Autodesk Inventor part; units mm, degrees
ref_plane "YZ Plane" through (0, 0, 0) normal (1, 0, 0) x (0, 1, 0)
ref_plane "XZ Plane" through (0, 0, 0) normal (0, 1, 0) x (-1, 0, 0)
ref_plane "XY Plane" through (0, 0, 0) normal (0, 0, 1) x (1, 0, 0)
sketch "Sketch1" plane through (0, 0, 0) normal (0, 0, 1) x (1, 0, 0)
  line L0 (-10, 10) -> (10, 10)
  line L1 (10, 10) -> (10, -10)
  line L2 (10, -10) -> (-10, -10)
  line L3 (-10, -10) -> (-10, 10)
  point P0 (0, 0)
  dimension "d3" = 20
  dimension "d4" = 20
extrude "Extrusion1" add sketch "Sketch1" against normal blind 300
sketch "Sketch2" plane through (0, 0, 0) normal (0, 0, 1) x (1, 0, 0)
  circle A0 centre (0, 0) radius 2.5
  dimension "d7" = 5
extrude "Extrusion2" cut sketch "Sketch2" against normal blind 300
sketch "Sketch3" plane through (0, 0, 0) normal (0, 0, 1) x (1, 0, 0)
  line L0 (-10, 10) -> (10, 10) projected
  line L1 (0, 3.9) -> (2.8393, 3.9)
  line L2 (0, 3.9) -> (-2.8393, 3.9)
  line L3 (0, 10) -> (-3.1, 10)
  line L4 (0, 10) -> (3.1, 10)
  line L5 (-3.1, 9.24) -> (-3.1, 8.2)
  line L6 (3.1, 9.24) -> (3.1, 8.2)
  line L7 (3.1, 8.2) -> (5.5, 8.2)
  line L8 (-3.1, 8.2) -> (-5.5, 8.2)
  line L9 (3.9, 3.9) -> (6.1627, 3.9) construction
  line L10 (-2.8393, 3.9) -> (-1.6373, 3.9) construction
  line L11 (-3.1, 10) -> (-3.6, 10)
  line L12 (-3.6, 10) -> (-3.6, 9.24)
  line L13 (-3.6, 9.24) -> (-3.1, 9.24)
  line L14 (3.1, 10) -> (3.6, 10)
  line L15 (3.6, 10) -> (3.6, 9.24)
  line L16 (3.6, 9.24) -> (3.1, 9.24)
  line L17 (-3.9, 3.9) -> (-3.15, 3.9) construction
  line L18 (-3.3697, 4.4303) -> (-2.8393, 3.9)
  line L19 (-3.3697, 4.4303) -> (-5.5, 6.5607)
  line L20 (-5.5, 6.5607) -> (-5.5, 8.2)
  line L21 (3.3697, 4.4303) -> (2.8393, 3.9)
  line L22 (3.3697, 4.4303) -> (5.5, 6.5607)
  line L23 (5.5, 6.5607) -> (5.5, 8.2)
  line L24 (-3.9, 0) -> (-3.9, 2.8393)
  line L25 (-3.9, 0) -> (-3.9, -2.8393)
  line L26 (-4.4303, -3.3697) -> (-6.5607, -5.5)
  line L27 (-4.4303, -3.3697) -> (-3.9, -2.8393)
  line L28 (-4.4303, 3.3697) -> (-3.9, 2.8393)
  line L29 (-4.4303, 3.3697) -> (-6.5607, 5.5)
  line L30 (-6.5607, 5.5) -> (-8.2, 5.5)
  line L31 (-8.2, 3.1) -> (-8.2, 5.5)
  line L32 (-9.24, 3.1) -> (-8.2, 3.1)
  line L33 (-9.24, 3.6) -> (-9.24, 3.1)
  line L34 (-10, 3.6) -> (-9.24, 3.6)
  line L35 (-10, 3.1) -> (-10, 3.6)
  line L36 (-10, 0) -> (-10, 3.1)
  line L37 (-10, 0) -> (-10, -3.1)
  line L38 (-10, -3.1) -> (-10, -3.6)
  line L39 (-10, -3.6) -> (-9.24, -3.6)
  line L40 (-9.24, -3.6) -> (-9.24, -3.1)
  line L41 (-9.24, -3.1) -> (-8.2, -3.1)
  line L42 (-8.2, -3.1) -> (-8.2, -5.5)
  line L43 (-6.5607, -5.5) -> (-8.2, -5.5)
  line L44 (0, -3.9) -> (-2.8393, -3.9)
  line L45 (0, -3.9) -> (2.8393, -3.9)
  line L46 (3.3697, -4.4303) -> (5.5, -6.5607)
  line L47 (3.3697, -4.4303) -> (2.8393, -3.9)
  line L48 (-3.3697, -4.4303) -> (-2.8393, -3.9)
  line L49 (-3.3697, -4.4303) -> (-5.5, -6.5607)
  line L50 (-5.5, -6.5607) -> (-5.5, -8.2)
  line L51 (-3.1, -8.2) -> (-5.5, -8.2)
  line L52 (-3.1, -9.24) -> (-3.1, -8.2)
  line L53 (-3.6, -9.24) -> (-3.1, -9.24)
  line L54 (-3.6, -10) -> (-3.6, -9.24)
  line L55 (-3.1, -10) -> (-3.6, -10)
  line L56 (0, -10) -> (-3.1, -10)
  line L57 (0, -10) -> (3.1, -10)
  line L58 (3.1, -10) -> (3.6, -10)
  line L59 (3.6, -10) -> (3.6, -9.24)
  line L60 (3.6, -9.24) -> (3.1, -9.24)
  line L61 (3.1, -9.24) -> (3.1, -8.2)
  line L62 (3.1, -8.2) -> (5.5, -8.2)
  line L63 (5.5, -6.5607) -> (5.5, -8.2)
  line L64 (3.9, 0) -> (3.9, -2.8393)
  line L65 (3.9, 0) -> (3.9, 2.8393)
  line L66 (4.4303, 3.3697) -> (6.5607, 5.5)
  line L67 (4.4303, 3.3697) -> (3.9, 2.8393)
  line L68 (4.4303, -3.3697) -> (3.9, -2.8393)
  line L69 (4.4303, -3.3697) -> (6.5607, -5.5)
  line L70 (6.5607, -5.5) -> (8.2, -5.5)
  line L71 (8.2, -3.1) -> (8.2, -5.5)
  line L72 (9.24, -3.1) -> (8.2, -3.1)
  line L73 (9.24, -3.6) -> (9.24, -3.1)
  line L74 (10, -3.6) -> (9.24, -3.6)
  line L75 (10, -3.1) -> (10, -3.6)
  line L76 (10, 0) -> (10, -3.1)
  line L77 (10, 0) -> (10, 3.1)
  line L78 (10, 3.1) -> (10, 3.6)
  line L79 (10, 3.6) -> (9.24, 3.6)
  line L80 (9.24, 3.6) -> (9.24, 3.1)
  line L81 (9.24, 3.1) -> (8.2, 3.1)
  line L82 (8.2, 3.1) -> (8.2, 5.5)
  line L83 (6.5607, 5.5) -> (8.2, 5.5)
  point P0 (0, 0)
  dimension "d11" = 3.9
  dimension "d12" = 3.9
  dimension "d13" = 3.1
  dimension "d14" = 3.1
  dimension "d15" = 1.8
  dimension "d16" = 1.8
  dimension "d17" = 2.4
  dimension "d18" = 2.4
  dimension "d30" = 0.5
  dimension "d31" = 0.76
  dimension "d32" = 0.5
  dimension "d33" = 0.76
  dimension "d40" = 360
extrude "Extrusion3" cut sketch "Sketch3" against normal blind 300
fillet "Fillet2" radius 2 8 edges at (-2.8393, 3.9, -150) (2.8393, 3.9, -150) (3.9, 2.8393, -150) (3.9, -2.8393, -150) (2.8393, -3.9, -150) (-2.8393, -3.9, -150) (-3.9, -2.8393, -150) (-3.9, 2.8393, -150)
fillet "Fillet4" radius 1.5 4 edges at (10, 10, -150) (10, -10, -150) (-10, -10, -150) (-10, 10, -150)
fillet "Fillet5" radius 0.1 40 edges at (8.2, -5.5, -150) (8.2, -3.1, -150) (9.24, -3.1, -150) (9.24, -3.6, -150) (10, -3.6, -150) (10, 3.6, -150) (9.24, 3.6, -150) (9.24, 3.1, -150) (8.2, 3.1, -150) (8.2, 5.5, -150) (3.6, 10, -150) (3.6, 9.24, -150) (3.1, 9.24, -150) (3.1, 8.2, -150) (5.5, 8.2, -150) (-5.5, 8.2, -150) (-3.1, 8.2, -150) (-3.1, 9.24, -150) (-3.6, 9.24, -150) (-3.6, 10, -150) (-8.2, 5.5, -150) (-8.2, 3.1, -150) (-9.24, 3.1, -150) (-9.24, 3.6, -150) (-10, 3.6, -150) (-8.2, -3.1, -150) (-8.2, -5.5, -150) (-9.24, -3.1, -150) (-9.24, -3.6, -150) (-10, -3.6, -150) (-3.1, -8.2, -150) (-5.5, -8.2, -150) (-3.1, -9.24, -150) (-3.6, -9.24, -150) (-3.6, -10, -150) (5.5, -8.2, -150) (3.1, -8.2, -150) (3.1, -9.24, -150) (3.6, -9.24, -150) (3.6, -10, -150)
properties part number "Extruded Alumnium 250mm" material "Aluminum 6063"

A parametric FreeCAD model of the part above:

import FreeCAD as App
import Part
import Sketcher

V = App.Vector


def edges_at(feature, points):
    """Names of the edges that pass closest to the given points."""
    edges = feature.Shape.Edges
    near = lambda p: min(range(len(edges)), key=lambda i: edges[i].distToShape(Part.Vertex(*p))[0])
    return sorted({f"Edge{near(p) + 1}" for p in points})


def add_polygon(sketch, points):
    """Adds a closed chain of lines whose ends are joined by coincident constraints."""
    first, n = sketch.GeometryCount, len(points)
    for a, b in zip(points, points[1:] + points[:1]):
        sketch.addGeometry(Part.LineSegment(App.Vector(*a, 0), App.Vector(*b, 0)), False)
    for i in range(n):
        sketch.addConstraint(Sketcher.Constraint("Coincident", first + i, 2, first + (i + 1) % n, 1))

doc = App.newDocument("Part")
body = doc.addObject("PartDesign::Body", "Body")

# Sketch on XY plane
sketch1 = body.newObject("Sketcher::SketchObject", "Sketch")
sketch1.AttachmentSupport = (doc.getObject("XY_Plane"), [""])
sketch1.MapMode = "FlatFace"
add_polygon(sketch1, [(10, 10), (-10, 10), (-10, -10), (10, -10)])  # lines 0-3
sketch1.addConstraint([
    Sketcher.Constraint("Horizontal", 0),
    Sketcher.Constraint("Vertical", 1),
    Sketcher.Constraint("Horizontal", 2),
    Sketcher.Constraint("Vertical", 3),
    Sketcher.Constraint("Symmetric", 0, 2, 2, 2, -1, 1),
    Sketcher.Constraint("Equal", 2, 1),
    Sketcher.Constraint("DistanceX", 0, 2, 0, 1, 20.0),
])
pad1 = body.newObject("PartDesign::Pad", "Pad")
pad1.Profile = sketch1
pad1.Length = 300
pad1.Reversed = True

# Sketch on XY plane
sketch2 = body.newObject("Sketcher::SketchObject", "Sketch001")
sketch2.AttachmentSupport = (doc.getObject("XY_Plane"), [""])
sketch2.MapMode = "FlatFace"
sketch2.addGeometry(Part.Circle(V(0, 0, 0), V(0, 0, 1), 2.5), False)
sketch2.addConstraint([
    Sketcher.Constraint("Coincident", 0, 3, -1, 1),
    Sketcher.Constraint("Diameter", 0, 5.0),
])
pocket1 = body.newObject("PartDesign::Pocket", "Pocket")
pocket1.Profile = sketch2
pocket1.Length = 300

# Sketch on XY plane
sketch3 = body.newObject("Sketcher::SketchObject", "Sketch002")
sketch3.AttachmentSupport = (doc.getObject("XY_Plane"), [""])
sketch3.MapMode = "FlatFace"
add_polygon(sketch3, [(3.6, 10), (-3.6, 10), (-3.6, 9.2), (-3.1, 9.2), (-3.1, 8.2), (-5.5, 8.2), (-5.5, 6.6), (-3.4, 4.4), (-2.8, 3.9), (2.8, 3.9), (3.4, 4.4), (5.5, 6.6), (5.5, 8.2), (3.1, 8.2), (3.1, 9.2), (3.6, 9.2)])  # lines 0-15
add_polygon(sketch3, [(-3.9, -2.8), (-3.9, 2.8), (-4.4, 3.4), (-6.6, 5.5), (-8.2, 5.5), (-8.2, 3.1), (-9.2, 3.1), (-9.2, 3.6), (-10, 3.6), (-10, -3.6), (-9.2, -3.6), (-9.2, -3.1), (-8.2, -3.1), (-8.2, -5.5), (-6.6, -5.5), (-4.4, -3.4)])  # lines 16-31
add_polygon(sketch3, [(2.8, -3.9), (-2.8, -3.9), (-3.4, -4.4), (-5.5, -6.6), (-5.5, -8.2), (-3.1, -8.2), (-3.1, -9.2), (-3.6, -9.2), (-3.6, -10), (3.6, -10), (3.6, -9.2), (3.1, -9.2), (3.1, -8.2), (5.5, -8.2), (5.5, -6.6), (3.4, -4.4)])  # lines 32-47
add_polygon(sketch3, [(3.9, 2.8), (3.9, -2.8), (4.4, -3.4), (6.6, -5.5), (8.2, -5.5), (8.2, -3.1), (9.2, -3.1), (9.2, -3.6), (10, -3.6), (10, 3.6), (9.2, 3.6), (9.2, 3.1), (8.2, 3.1), (8.2, 5.5), (6.6, 5.5), (4.4, 3.4)])  # lines 48-63
sketch3.addConstraint([
    Sketcher.Constraint("Horizontal", 0),
    Sketcher.Constraint("Vertical", 1),
    Sketcher.Constraint("Horizontal", 2),
    Sketcher.Constraint("Vertical", 3),
    Sketcher.Constraint("Horizontal", 4),
    Sketcher.Constraint("Vertical", 5),
    Sketcher.Constraint("Horizontal", 8),
    Sketcher.Constraint("Vertical", 11),
    Sketcher.Constraint("Horizontal", 12),
    Sketcher.Constraint("Vertical", 13),
    Sketcher.Constraint("Horizontal", 14),
    Sketcher.Constraint("Vertical", 15),
    Sketcher.Constraint("Vertical", 16),
    Sketcher.Constraint("Horizontal", 19),
    Sketcher.Constraint("Vertical", 20),
    Sketcher.Constraint("Horizontal", 21),
    Sketcher.Constraint("Vertical", 22),
    Sketcher.Constraint("Horizontal", 23),
    Sketcher.Constraint("Vertical", 24),
    Sketcher.Constraint("Horizontal", 25),
    Sketcher.Constraint("Vertical", 26),
    Sketcher.Constraint("Horizontal", 27),
    Sketcher.Constraint("Vertical", 28),
    Sketcher.Constraint("Horizontal", 29),
    Sketcher.Constraint("Horizontal", 32),
    Sketcher.Constraint("Vertical", 35),
    Sketcher.Constraint("Horizontal", 36),
    Sketcher.Constraint("Vertical", 37),
    Sketcher.Constraint("Horizontal", 38),
    Sketcher.Constraint("Vertical", 39),
    Sketcher.Constraint("Horizontal", 40),
    Sketcher.Constraint("Vertical", 41),
    Sketcher.Constraint("Horizontal", 42),
    Sketcher.Constraint("Vertical", 43),
    Sketcher.Constraint("Horizontal", 44),
    Sketcher.Constraint("Vertical", 45),
    Sketcher.Constraint("Vertical", 48),
    Sketcher.Constraint("Horizontal", 51),
    Sketcher.Constraint("Vertical", 52),
    Sketcher.Constraint("Horizontal", 53),
    Sketcher.Constraint("Vertical", 54),
    Sketcher.Constraint("Horizontal", 55),
    Sketcher.Constraint("Vertical", 56),
    Sketcher.Constraint("Horizontal", 57),
    Sketcher.Constraint("Vertical", 58),
    Sketcher.Constraint("Horizontal", 59),
    Sketcher.Constraint("Vertical", 60),
    Sketcher.Constraint("Horizontal", 61),
    Sketcher.Constraint("Symmetric", 8, 2, 32, 2, -1, 1),
    Sketcher.Constraint("Symmetric", 9, 2, 33, 2, -1, 1),
    Sketcher.Constraint("Symmetric", 10, 2, 34, 2, -1, 1),
    Sketcher.Constraint("Symmetric", 12, 2, 36, 2, -1, 1),
    Sketcher.Constraint("Symmetric", 14, 2, 38, 2, -1, 1),
    Sketcher.Constraint("Symmetric", 0, 2, 40, 2, -1, 1),
    Sketcher.Constraint("Symmetric", 2, 2, 42, 2, -1, 1),
    Sketcher.Constraint("Symmetric", 4, 2, 44, 2, -1, 1),
    Sketcher.Constraint("Symmetric", 6, 2, 46, 2, -1, 1),
    Sketcher.Constraint("Symmetric", 16, 2, 48, 2, -1, 1),
    Sketcher.Constraint("Symmetric", 17, 2, 49, 2, -1, 1),
    Sketcher.Constraint("Symmetric", 18, 2, 50, 2, -1, 1),
    Sketcher.Constraint("Symmetric", 20, 2, 52, 2, -1, 1),
    Sketcher.Constraint("Symmetric", 22, 2, 54, 2, -1, 1),
    Sketcher.Constraint("Symmetric", 24, 2, 56, 2, -1, 1),
    Sketcher.Constraint("Symmetric", 26, 2, 58, 2, -1, 1),
    Sketcher.Constraint("Symmetric", 28, 2, 60, 2, -1, 1),
    Sketcher.Constraint("Symmetric", 30, 2, 62, 2, -1, 1),
    Sketcher.Constraint("Symmetric", 6, 2, 9, 2, -2),
    Sketcher.Constraint("Symmetric", 5, 2, 10, 2, -2),
    Sketcher.Constraint("Symmetric", 3, 2, 12, 2, -2),
    Sketcher.Constraint("Symmetric", 1, 2, 14, 2, -2),
    Sketcher.Constraint("Symmetric", 30, 2, 49, 2, -2),
    Sketcher.Constraint("Symmetric", 29, 2, 50, 2, -2),
    Sketcher.Constraint("Symmetric", 27, 2, 52, 2, -2),
    Sketcher.Constraint("Symmetric", 25, 2, 54, 2, -2),
    Sketcher.Constraint("Parallel", 6, 7),
    Sketcher.Constraint("Perpendicular", 7, 9),
    Sketcher.Constraint("Parallel", 9, 10),
    Sketcher.Constraint("Perpendicular", 10, 17),
    Sketcher.Constraint("Parallel", 17, 18),
    Sketcher.Constraint("Parallel", 30, 31),
    Sketcher.Constraint("Perpendicular", 34, 46),
    Sketcher.Constraint("Parallel", 46, 47),
    Sketcher.Constraint("Perpendicular", 50, 62),
    Sketcher.Constraint("Parallel", 62, 63),
    Sketcher.Constraint("Equal", 57, 1),
    Sketcher.Constraint("Equal", 59, 3),
    Sketcher.Constraint("Equal", 61, 5),
    Sketcher.Constraint("Equal", 32, 16),
    Sketcher.Constraint("Equal", 44, 20),
    Sketcher.Constraint("Equal", 42, 22),
    Sketcher.Constraint("Equal", 40, 24),
    Sketcher.Constraint("Equal", 9, 17),
    Sketcher.Constraint("DistanceX", 2, 1, 2, 2, 0.5),
    Sketcher.Constraint("DistanceX", 4, 2, 4, 1, 2.4),
    Sketcher.Constraint("DistanceX", 23, 2, 23, 1, 0.76),
    Sketcher.Constraint("DistanceX", 2, 2, -1, 1, 3.1),
    Sketcher.Constraint("DistanceY", -1, 1, 7, 2, 3.9),
    Sketcher.Constraint("DistanceX", 16, 2, -1, 1, 3.9),
    Sketcher.Constraint("DistanceY", -1, 1, 0, 2, 10.0),
    Sketcher.Constraint("DistanceX", 21, 2, 21, 1, 1.04),
    Sketcher.Constraint("Distance", 7, 0.75),
    Sketcher.Constraint("DistanceX", 8, 1, 8, 2, 5.6786),
])
pocket2 = body.newObject("PartDesign::Pocket", "Pocket001")
pocket2.Profile = sketch3
pocket2.Length = 300
doc.recompute()

fillet = body.newObject("PartDesign::Fillet", "Fillet")
fillet.Base = (pocket2, edges_at(pocket2, [
    (-2.839, 3.9, -150),
    (2.839, 3.9, -150),
    (3.9, 2.839, -150),
    (3.9, -2.839, -150),
    (2.839, -3.9, -150),
    (-2.839, -3.9, -150),
    (-3.9, -2.839, -150),
    (-3.9, 2.839, -150),
]))
fillet.Radius = 2
doc.recompute()

fillet2 = body.newObject("PartDesign::Fillet", "Fillet001")
fillet2.Base = (fillet, edges_at(fillet, [
    (10, 10, -150),
    (10, -10, -150),
    (-10, -10, -150),
    (-10, 10, -150),
]))
fillet2.Radius = 1.5
doc.recompute()

fillet3 = body.newObject("PartDesign::Fillet", "Fillet002")
fillet3.Base = (fillet2, edges_at(fillet2, [
    (8.2, -5.5, -150),
    (8.2, -3.1, -150),
    (9.24, -3.1, -150),
    (9.24, -3.6, -150),
    (10, -3.6, -150),
    (10, 3.6, -150),
    (9.24, 3.6, -150),
    (9.24, 3.1, -150),
    (8.2, 3.1, -150),
    (8.2, 5.5, -150),
    (3.6, 10, -150),
    (3.6, 9.24, -150),
    (3.1, 9.24, -150),
    (3.1, 8.2, -150),
    (5.5, 8.2, -150),
    (-5.5, 8.2, -150),
    (-3.1, 8.2, -150),
    (-3.1, 9.24, -150),
    (-3.6, 9.24, -150),
    (-3.6, 10, -150),
    (-8.2, 5.5, -150),
    (-8.2, 3.1, -150),
    (-9.24, 3.1, -150),
    (-9.24, 3.6, -150),
    (-10, 3.6, -150),
    (-8.2, -3.1, -150),
    (-8.2, -5.5, -150),
    (-9.24, -3.1, -150),
    (-9.24, -3.6, -150),
    (-10, -3.6, -150),
    (-3.1, -8.2, -150),
    (-5.5, -8.2, -150),
    (-3.1, -9.24, -150),
    (-3.6, -9.24, -150),
    (-3.6, -10, -150),
    (5.5, -8.2, -150),
    (3.1, -8.2, -150),
    (3.1, -9.24, -150),
    (3.6, -9.24, -150),
    (3.6, -10, -150),
]))
fillet3.Radius = 0.1

doc.recompute()
